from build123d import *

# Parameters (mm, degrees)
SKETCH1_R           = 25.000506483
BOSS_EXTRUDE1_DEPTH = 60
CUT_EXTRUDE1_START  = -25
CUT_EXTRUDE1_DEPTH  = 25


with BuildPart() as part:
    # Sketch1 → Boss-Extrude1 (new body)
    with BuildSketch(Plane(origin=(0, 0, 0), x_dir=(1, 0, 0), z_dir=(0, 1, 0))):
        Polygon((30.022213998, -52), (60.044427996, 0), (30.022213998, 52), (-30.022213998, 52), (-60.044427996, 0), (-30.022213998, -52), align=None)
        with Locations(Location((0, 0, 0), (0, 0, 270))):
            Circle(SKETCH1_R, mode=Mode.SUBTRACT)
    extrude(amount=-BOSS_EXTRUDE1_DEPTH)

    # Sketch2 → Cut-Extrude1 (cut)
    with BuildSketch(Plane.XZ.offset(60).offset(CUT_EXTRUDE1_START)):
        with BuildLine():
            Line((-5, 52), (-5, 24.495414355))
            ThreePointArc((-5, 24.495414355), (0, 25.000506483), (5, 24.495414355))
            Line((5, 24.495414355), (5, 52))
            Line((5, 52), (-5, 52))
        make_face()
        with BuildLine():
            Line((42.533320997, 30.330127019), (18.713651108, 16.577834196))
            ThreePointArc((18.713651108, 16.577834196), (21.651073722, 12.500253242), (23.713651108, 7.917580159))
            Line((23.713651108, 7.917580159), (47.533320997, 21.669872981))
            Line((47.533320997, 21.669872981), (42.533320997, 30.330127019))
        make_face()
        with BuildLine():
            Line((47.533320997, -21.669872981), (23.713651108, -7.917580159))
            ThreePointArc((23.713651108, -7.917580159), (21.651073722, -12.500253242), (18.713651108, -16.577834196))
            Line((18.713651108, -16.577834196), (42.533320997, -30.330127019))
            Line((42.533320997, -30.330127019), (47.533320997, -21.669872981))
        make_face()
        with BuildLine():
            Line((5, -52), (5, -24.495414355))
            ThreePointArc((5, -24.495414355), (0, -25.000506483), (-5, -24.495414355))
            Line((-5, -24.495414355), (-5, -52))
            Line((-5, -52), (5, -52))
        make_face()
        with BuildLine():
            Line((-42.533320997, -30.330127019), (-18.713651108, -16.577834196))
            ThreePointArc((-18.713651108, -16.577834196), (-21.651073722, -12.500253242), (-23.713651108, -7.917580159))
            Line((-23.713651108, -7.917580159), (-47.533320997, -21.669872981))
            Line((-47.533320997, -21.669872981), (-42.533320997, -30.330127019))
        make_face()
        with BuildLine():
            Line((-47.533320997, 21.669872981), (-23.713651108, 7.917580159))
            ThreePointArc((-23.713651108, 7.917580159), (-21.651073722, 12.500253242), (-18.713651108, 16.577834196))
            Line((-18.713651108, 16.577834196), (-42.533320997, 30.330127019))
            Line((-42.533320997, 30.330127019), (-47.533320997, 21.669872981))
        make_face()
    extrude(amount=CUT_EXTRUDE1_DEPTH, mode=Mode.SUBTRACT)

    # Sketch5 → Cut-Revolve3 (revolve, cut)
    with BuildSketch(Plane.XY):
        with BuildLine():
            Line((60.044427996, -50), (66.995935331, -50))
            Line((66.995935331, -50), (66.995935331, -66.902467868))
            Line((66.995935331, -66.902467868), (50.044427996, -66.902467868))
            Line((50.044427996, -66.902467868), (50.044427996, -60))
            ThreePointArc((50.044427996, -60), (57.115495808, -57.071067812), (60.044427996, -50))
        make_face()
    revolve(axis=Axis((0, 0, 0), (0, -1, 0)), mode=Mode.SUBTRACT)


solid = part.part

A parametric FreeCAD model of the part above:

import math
import FreeCAD as App
import Part
import Sketcher

V = App.Vector
Q = App.Units.Quantity

doc = App.newDocument("Part")
body = doc.addObject("PartDesign::Body", "Body")

# Sketch on XZ plane
sketch1 = body.newObject("Sketcher::SketchObject", "Sketch")
sketch1.AttachmentSupport = (doc.getObject("XZ_Plane"), [""])
sketch1.MapMode = "FlatFace"
sketch1.addGeometry(Part.LineSegment(V(30.022214, 52, 0), V(60.044428, 0, 0)), False)
sketch1.addGeometry(Part.LineSegment(V(60.044428, 0, 0), V(30.022214, -52, 0)), False)
sketch1.addGeometry(Part.LineSegment(V(30.022214, -52, 0), V(-30.022214, -52, 0)), False)
sketch1.addGeometry(Part.LineSegment(V(-30.022214, -52, 0), V(-60.044428, 0, 0)), False)
sketch1.addGeometry(Part.LineSegment(V(-60.044428, 0, 0), V(-30.022214, 52, 0)), False)
sketch1.addGeometry(Part.LineSegment(V(-30.022214, 52, 0), V(30.022214, 52, 0)), False)
sketch1.addGeometry(Part.Circle(V(0, 0, 0), V(0, 0, 1), 25.000506), False)
sketch1.addConstraint(Sketcher.Constraint("Coincident", 0, 2, 1, 1))
sketch1.addConstraint(Sketcher.Constraint("Coincident", 1, 2, 2, 1))
sketch1.addConstraint(Sketcher.Constraint("Coincident", 2, 2, 3, 1))
sketch1.addConstraint(Sketcher.Constraint("Coincident", 3, 2, 4, 1))
sketch1.addConstraint(Sketcher.Constraint("Coincident", 4, 2, 5, 1))
sketch1.addConstraint(Sketcher.Constraint("Coincident", 5, 2, 0, 1))
sketch1.addConstraint(Sketcher.Constraint("Horizontal", 2))
sketch1.addConstraint(Sketcher.Constraint("Horizontal", 5))
sketch1.addConstraint(Sketcher.Constraint("Coincident", 6, 3, -1, 1))
sketch1.addConstraint(Sketcher.Constraint("Symmetric", 0, 2, 3, 2, -1, 1))
sketch1.addConstraint(Sketcher.Constraint("Symmetric", 1, 2, 4, 2, -1, 1))
sketch1.addConstraint(Sketcher.Constraint("PointOnObject", 0, 2, -1))
sketch1.addConstraint(Sketcher.Constraint("Parallel", 0, 3))
sketch1.addConstraint(Sketcher.Constraint("Vertical", 2, 2, 4, 2))
sketch1.addConstraint(Sketcher.Constraint("Angle", 0, Q("-60 deg")))
sketch1.addConstraint(Sketcher.Constraint("DistanceY", 1, 2, -1, 1, Q("52 mm")))
sketch1.addConstraint(Sketcher.Constraint("Diameter", 6, Q("50.001013 mm")))
sketch1.addConstraint(Sketcher.Constraint("DistanceX", 2, 2, 2, 1, Q("60.044428 mm")))
pad1 = body.newObject("PartDesign::Pad", "Pad")
pad1.Profile = sketch1
pad1.Length = 60

# Sketch on XZ plane
sketch2 = body.newObject("Sketcher::SketchObject", "Sketch001")
sketch2.AttachmentSupport = (doc.getObject("XZ_Plane"), [""])
sketch2.MapMode = "FlatFace"
sketch2.AttachmentOffset = App.Placement(V(0, 0, 35), App.Rotation())
sketch2.addGeometry(Part.LineSegment(V(-5, 52, 0), V(-5, 24.495414, 0)), False)
sketch2.addGeometry(Part.ArcOfCircle(Part.Circle(V(0, 0, 0), V(0, 0, 1), 25.000506), math.radians(78.463278), math.radians(101.536722)), False)
sketch2.addGeometry(Part.LineSegment(V(5, 24.495414, 0), V(5, 52, 0)), False)
sketch2.addGeometry(Part.LineSegment(V(5, 52, 0), V(-5, 52, 0)), False)
sketch2.addGeometry(Part.LineSegment(V(42.533321, 30.330127, 0), V(18.713651, 16.577834, 0)), False)
sketch2.addGeometry(Part.ArcOfCircle(Part.Circle(V(0, 0, 0), V(0, 0, 1), 25.000506), math.radians(18.463278), math.radians(41.536722)), False)
sketch2.addGeometry(Part.LineSegment(V(23.713651, 7.91758, 0), V(47.533321, 21.669873, 0)), False)
sketch2.addGeometry(Part.LineSegment(V(47.533321, 21.669873, 0), V(42.533321, 30.330127, 0)), False)
sketch2.addGeometry(Part.LineSegment(V(47.533321, -21.669873, 0), V(23.713651, -7.91758, 0)), False)
sketch2.addGeometry(Part.ArcOfCircle(Part.Circle(V(0, 0, 0), V(0, 0, 1), 25.000506), math.radians(-41.536722), math.radians(-18.463278)), False)
sketch2.addGeometry(Part.LineSegment(V(18.713651, -16.577834, 0), V(42.533321, -30.330127, 0)), False)
sketch2.addGeometry(Part.LineSegment(V(42.533321, -30.330127, 0), V(47.533321, -21.669873, 0)), False)
sketch2.addGeometry(Part.LineSegment(V(5, -52, 0), V(5, -24.495414, 0)), False)
sketch2.addGeometry(Part.ArcOfCircle(Part.Circle(V(0, 0, 0), V(0, 0, 1), 25.000506), math.radians(-101.536722), math.radians(-78.463278)), False)
sketch2.addGeometry(Part.LineSegment(V(-5, -24.495414, 0), V(-5, -52, 0)), False)
sketch2.addGeometry(Part.LineSegment(V(-5, -52, 0), V(5, -52, 0)), False)
sketch2.addGeometry(Part.LineSegment(V(-42.533321, -30.330127, 0), V(-18.713651, -16.577834, 0)), False)
sketch2.addGeometry(Part.ArcOfCircle(Part.Circle(V(0, 0, 0), V(0, 0, 1), 25.000506), math.radians(-161.536722), math.radians(-138.463278)), False)
sketch2.addGeometry(Part.LineSegment(V(-23.713651, -7.91758, 0), V(-47.533321, -21.669873, 0)), False)
sketch2.addGeometry(Part.LineSegment(V(-47.533321, -21.669873, 0), V(-42.533321, -30.330127, 0)), False)
sketch2.addGeometry(Part.LineSegment(V(-47.533321, 21.669873, 0), V(-23.713651, 7.91758, 0)), False)
sketch2.addGeometry(Part.ArcOfCircle(Part.Circle(V(0, 0, 0), V(0, 0, 1), 25.000506), math.radians(138.463278), math.radians(161.536722)), False)
sketch2.addGeometry(Part.LineSegment(V(-18.713651, 16.577834, 0), V(-42.533321, 30.330127, 0)), False)
sketch2.addGeometry(Part.LineSegment(V(-42.533321, 30.330127, 0), V(-47.533321, 21.669873, 0)), False)
sketch2.addConstraint(Sketcher.Constraint("Coincident", 0, 2, 1, 2))
sketch2.addConstraint(Sketcher.Constraint("Coincident", 1, 1, 2, 1))
sketch2.addConstraint(Sketcher.Constraint("Coincident", 2, 2, 3, 1))
sketch2.addConstraint(Sketcher.Constraint("Coincident", 3, 2, 0, 1))
sketch2.addConstraint(Sketcher.Constraint("Coincident", 4, 2, 5, 2))
sketch2.addConstraint(Sketcher.Constraint("Coincident", 5, 1, 6, 1))
sketch2.addConstraint(Sketcher.Constraint("Coincident", 6, 2, 7, 1))
sketch2.addConstraint(Sketcher.Constraint("Coincident", 7, 2, 4, 1))
sketch2.addConstraint(Sketcher.Constraint("Coincident", 8, 2, 9, 2))
sketch2.addConstraint(Sketcher.Constraint("Coincident", 9, 1, 10, 1))
sketch2.addConstraint(Sketcher.Constraint("Coincident", 10, 2, 11, 1))
sketch2.addConstraint(Sketcher.Constraint("Coincident", 11, 2, 8, 1))
sketch2.addConstraint(Sketcher.Constraint("Coincident", 12, 2, 13, 2))
sketch2.addConstraint(Sketcher.Constraint("Coincident", 13, 1, 14, 1))
sketch2.addConstraint(Sketcher.Constraint("Coincident", 14, 2, 15, 1))
sketch2.addConstraint(Sketcher.Constraint("Coincident", 15, 2, 12, 1))
sketch2.addConstraint(Sketcher.Constraint("Coincident", 16, 2, 17, 2))
sketch2.addConstraint(Sketcher.Constraint("Coincident", 17, 1, 18, 1))
sketch2.addConstraint(Sketcher.Constraint("Coincident", 18, 2, 19, 1))
sketch2.addConstraint(Sketcher.Constraint("Coincident", 19, 2, 16, 1))
sketch2.addConstraint(Sketcher.Constraint("Coincident", 20, 2, 21, 2))
sketch2.addConstraint(Sketcher.Constraint("Coincident", 21, 1, 22, 1))
sketch2.addConstraint(Sketcher.Constraint("Coincident", 22, 2, 23, 1))
sketch2.addConstraint(Sketcher.Constraint("Coincident", 23, 2, 20, 1))
sketch2.addConstraint(Sketcher.Constraint("Vertical", 0))
sketch2.addConstraint(Sketcher.Constraint("Vertical", 2))
sketch2.addConstraint(Sketcher.Constraint("Horizontal", 3))
sketch2.addConstraint(Sketcher.Constraint("Vertical", 12))
sketch2.addConstraint(Sketcher.Constraint("Vertical", 14))
sketch2.addConstraint(Sketcher.Constraint("Horizontal", 15))
sketch2.addConstraint(Sketcher.Constraint("Coincident", 1, 3, -1, 1))
sketch2.addConstraint(Sketcher.Constraint("Coincident", 5, 3, -1, 1))
sketch2.addConstraint(Sketcher.Constraint("Coincident", 9, 3, -1, 1))
sketch2.addConstraint(Sketcher.Constraint("Coincident", 13, 3, -1, 1))
sketch2.addConstraint(Sketcher.Constraint("Coincident", 17, 3, -1, 1))
sketch2.addConstraint(Sketcher.Constraint("Coincident", 21, 3, -1, 1))
sketch2.addConstraint(Sketcher.Constraint("Equal", 1, 5))
sketch2.addConstraint(Sketcher.Constraint("Equal", 5, 9))
sketch2.addConstraint(Sketcher.Constraint("Equal", 9, 13))
sketch2.addConstraint(Sketcher.Constraint("Equal", 13, 17))
sketch2.addConstraint(Sketcher.Constraint("Equal", 17, 21))
sketch2.addConstraint(Sketcher.Constraint("Symmetric", 2, 2, 14, 2, -1, 1))
sketch2.addConstraint(Sketcher.Constraint("Symmetric", 6, 2, 18, 2, -1, 1))
sketch2.addConstraint(Sketcher.Constraint("Symmetric", 7, 2, 19, 2, -1, 1))
sketch2.addConstraint(Sketcher.Constraint("Symmetric", 10, 2, 22, 2, -1, 1))
sketch2.addConstraint(Sketcher.Constraint("Symmetric", 11, 2, 23, 2, -1, 1))
sketch2.addConstraint(Sketcher.Constraint("Symmetric", 11, 2, 18, 2, -2))
sketch2.addConstraint(Sketcher.Constraint("Symmetric", 10, 2, 19, 2, -2))
sketch2.addConstraint(Sketcher.Constraint("Parallel", 4, 6))
sketch2.addConstraint(Sketcher.Constraint("Perpendicular", 6, 7))
sketch2.addConstraint(Sketcher.Constraint("Parallel", 8, 10))
sketch2.addConstraint(Sketcher.Constraint("Perpendicular", 10, 11))
sketch2.addConstraint(Sketcher.Constraint("Perpendicular", 7, 16))
sketch2.addConstraint(Sketcher.Constraint("Parallel", 16, 18))
sketch2.addConstraint(Sketcher.Constraint("Perpendicular", 11, 20))
sketch2.addConstraint(Sketcher.Constraint("Parallel", 20, 22))
sketch2.addConstraint(Sketcher.Constraint("Horizontal", 0, 2, 1, 1))
sketch2.addConstraint(Sketcher.Constraint("Horizontal", 12, 2, 13, 1))
sketch2.addConstraint(Sketcher.Constraint("Equal", 4, 6))
sketch2.addConstraint(Sketcher.Constraint("DistanceX", 3, 2, 3, 1, Q("10 mm")))
sketch2.addConstraint(Sketcher.Constraint("Angle", 4, Q("-150 deg")))
sketch2.addConstraint(Sketcher.Constraint("Distance", 7, Q("10 mm")))
sketch2.addConstraint(Sketcher.Constraint("DistanceY", -1, 1, 2, 2, Q("52 mm")))
sketch2.addConstraint(Sketcher.Constraint("Radius", 1, Q("25.000506 mm")))
sketch2.addConstraint(Sketcher.Constraint("DistanceX", -1, 1, 6, 2, Q("47.533321 mm")))
pocket1 = body.newObject("PartDesign::Pocket", "Pocket")
pocket1.Profile = sketch2
pocket1.Length = 25
pocket1.Reversed = True

# Sketch on XY plane
sketch3 = body.newObject("Sketcher::SketchObject", "Sketch002")
sketch3.AttachmentSupport = (doc.getObject("XY_Plane"), [""])
sketch3.MapMode = "FlatFace"
sketch3.addGeometry(Part.LineSegment(V(66.995935, -50, 0), V(60.044428, -50, 0)), False)
sketch3.addGeometry(Part.ArcOfCircle(Part.Circle(V(50.044428, -50, 0), V(0, 0, 1), 10), math.radians(-90), math.radians(0)), False)
sketch3.addGeometry(Part.LineSegment(V(50.044428, -60, 0), V(50.044428, -66.902468, 0)), False)
sketch3.addGeometry(Part.LineSegment(V(50.044428, -66.902468, 0), V(66.995935, -66.902468, 0)), False)
sketch3.addGeometry(Part.LineSegment(V(66.995935, -66.902468, 0), V(66.995935, -50, 0)), False)
sketch3.addConstraint(Sketcher.Constraint("Coincident", 0, 2, 1, 2))
sketch3.addConstraint(Sketcher.Constraint("Coincident", 1, 1, 2, 1))
sketch3.addConstraint(Sketcher.Constraint("Coincident", 2, 2, 3, 1))
sketch3.addConstraint(Sketcher.Constraint("Coincident", 3, 2, 4, 1))
sketch3.addConstraint(Sketcher.Constraint("Coincident", 4, 2, 0, 1))
sketch3.addConstraint(Sketcher.Constraint("Horizontal", 0))
sketch3.addConstraint(Sketcher.Constraint("Vertical", 2))
sketch3.addConstraint(Sketcher.Constraint("Horizontal", 3))
sketch3.addConstraint(Sketcher.Constraint("Vertical", 4))
sketch3.addConstraint(Sketcher.Constraint("Horizontal", 1, 3, 0, 2))
sketch3.addConstraint(Sketcher.Constraint("Radius", 1, Q("10 mm")))
sketch3.addConstraint(Sketcher.Constraint("DistanceY", 1, 3, -1, 1, Q("50 mm")))
sketch3.addConstraint(Sketcher.Constraint("DistanceX", 1, 1, 0, 2, Q("10 mm")))
sketch3.addConstraint(Sketcher.Constraint("DistanceX", 0, 2, 0, 1, Q("6.951507 mm")))
sketch3.addConstraint(Sketcher.Constraint("DistanceY", 2, 2, 2, 1, Q("6.902468 mm")))
sketch3.addConstraint(Sketcher.Constraint("DistanceX", -1, 1, 1, 3, Q("50.044428 mm")))
groove = body.newObject("PartDesign::Groove", "Groove")
groove.Profile = sketch3
groove.ReferenceAxis = (sketch3, ["V_Axis"])
groove.Angle = 360

doc.recompute()
